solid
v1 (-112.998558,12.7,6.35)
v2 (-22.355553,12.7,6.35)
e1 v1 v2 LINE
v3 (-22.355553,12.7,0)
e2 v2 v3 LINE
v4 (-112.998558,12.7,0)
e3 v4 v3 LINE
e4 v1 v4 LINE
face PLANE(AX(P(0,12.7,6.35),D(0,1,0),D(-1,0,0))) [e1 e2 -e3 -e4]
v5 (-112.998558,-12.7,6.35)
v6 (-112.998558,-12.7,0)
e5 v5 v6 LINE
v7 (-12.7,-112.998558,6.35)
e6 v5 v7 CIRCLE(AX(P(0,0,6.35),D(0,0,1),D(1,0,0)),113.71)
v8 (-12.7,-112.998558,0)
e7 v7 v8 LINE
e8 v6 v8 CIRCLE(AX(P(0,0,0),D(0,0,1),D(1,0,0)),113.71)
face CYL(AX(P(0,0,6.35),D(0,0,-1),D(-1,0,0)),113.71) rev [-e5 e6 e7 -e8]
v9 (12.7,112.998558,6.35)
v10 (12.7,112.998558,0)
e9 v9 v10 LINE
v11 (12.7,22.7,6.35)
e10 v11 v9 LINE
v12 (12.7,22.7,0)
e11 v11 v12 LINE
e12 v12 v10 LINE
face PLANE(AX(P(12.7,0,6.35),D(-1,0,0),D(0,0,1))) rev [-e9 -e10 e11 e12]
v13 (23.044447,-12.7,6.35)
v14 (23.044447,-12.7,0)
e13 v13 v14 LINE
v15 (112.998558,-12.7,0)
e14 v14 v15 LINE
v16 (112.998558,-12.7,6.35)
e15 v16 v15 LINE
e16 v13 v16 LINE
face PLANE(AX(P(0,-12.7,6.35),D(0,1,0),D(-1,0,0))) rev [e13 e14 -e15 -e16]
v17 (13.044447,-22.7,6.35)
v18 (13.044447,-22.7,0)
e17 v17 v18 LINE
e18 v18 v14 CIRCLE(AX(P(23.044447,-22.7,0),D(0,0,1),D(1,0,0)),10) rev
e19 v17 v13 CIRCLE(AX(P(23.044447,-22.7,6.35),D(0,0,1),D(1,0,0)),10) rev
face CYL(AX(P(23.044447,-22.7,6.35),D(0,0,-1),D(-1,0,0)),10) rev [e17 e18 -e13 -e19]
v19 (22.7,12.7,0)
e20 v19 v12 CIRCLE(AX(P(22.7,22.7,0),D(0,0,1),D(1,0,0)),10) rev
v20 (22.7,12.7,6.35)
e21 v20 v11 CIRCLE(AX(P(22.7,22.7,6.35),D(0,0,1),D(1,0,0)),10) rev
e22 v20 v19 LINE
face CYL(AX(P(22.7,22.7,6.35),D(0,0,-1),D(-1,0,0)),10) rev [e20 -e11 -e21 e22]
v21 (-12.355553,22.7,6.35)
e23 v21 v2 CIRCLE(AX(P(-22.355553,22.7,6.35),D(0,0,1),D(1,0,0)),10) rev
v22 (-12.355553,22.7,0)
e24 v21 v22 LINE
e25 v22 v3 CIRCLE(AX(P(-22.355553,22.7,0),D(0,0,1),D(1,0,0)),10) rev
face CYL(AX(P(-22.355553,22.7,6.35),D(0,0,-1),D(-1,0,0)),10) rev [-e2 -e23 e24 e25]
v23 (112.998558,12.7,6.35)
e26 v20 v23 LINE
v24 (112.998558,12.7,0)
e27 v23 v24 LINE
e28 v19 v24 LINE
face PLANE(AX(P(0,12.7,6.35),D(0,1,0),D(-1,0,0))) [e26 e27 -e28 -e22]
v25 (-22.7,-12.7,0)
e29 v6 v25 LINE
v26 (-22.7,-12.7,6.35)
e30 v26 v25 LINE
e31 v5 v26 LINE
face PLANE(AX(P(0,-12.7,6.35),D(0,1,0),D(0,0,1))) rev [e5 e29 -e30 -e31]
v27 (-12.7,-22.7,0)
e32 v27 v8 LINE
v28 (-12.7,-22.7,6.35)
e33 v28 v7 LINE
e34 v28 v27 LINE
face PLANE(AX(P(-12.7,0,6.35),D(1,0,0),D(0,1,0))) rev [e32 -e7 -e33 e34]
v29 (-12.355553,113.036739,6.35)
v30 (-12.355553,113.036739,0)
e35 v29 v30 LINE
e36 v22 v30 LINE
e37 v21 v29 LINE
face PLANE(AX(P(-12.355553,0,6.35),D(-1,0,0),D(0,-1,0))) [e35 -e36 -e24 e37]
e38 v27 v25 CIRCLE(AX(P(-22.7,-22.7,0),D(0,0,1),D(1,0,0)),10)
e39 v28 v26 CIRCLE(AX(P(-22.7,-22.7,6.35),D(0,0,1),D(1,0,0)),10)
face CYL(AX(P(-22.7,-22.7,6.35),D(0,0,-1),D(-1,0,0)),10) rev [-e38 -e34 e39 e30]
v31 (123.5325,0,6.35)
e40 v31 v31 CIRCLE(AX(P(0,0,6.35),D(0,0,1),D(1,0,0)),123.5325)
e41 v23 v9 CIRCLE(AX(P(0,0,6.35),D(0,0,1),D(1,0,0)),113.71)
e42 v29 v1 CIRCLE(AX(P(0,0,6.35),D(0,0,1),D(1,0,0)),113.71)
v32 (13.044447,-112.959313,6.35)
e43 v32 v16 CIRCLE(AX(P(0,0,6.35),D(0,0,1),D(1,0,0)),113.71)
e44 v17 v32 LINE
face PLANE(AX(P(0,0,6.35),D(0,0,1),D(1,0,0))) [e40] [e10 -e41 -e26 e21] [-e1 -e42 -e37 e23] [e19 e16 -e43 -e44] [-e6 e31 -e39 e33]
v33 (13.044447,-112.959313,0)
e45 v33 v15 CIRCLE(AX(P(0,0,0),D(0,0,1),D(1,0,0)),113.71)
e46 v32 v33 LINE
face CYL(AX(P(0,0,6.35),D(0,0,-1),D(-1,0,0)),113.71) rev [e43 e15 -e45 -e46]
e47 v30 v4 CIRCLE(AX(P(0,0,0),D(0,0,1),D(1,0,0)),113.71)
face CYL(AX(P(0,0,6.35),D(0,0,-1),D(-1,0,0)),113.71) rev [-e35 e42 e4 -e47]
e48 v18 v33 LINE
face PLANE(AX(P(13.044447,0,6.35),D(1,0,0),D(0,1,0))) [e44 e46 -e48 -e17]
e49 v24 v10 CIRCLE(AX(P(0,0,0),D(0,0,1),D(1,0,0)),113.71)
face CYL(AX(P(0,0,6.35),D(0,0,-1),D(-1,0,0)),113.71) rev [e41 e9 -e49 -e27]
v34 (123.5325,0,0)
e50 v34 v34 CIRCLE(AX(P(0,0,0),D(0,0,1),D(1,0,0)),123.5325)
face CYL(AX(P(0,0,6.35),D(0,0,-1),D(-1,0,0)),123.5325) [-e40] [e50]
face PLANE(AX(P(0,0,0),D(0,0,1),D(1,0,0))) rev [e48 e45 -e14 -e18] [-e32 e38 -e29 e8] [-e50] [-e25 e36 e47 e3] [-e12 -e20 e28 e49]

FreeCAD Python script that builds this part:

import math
import FreeCAD as App
import Part
import Sketcher
from FreeCAD import Vector
Q = App.Units.Quantity

doc = App.newDocument("Part")
params = doc.addObject("Spreadsheet::Sheet", "Params")
for row, (alias, value) in enumerate([
    ("sketch1_radius", "10 mm"),
    ("sketch1_radius2", "113.71 mm"),
    ("pad1_length", "6.35 mm"),
], start=1):
    params.set(f"A{row}", alias)
    params.set(f"B{row}", "=" + value)
    params.setAlias(f"B{row}", alias)

body = doc.addObject("PartDesign::Body", "Body")

# Sketch on XY plane
sketch1 = body.newObject("Sketcher::SketchObject", "Sketch")
sketch1.AttachmentSupport = (doc.getObject("XY_Plane"), [""])
sketch1.MapMode = "FlatFace"
sketch1.addGeometry(Part.Circle(Vector(0, 0, 0), Vector(0, 0, 1), 123.5325), False)
sketch1.addGeometry(Part.ArcOfCircle(Part.Circle(Vector(0, 0, 0), Vector(0, 0, 1), 113.71), math.radians(6.412609), math.radians(83.587391)), False)
sketch1.addGeometry(Part.LineSegment(Vector(112.998558, 12.7, 0), Vector(22.7, 12.7, 0)), False)
sketch1.addGeometry(Part.ArcOfCircle(Part.Circle(Vector(22.7, 22.7, 0), Vector(0, 0, 1), 10), math.radians(180), math.radians(270)), False)
sketch1.addGeometry(Part.LineSegment(Vector(12.7, 22.7, 0), Vector(12.7, 112.998558, 0)), False)
sketch1.addGeometry(Part.ArcOfCircle(Part.Circle(Vector(0, 0, 0), Vector(0, 0, 1), 113.71), math.radians(96.237987), math.radians(173.587391)), False)
sketch1.addGeometry(Part.LineSegment(Vector(-12.355553, 113.036739, 0), Vector(-12.355553, 22.7, 0)), False)
sketch1.addGeometry(Part.ArcOfCircle(Part.Circle(Vector(-22.355553, 22.7, 0), Vector(0, 0, 1), 10), math.radians(-90), math.radians(0)), False)
sketch1.addGeometry(Part.LineSegment(Vector(-22.355553, 12.7, 0), Vector(-112.998558, 12.7, 0)), False)
sketch1.addGeometry(Part.ArcOfCircle(Part.Circle(Vector(0, 0, 0), Vector(0, 0, 1), 113.71), math.radians(-173.587391), math.radians(-96.412609)), False)
sketch1.addGeometry(Part.LineSegment(Vector(-112.998558, -12.7, 0), Vector(-22.7, -12.7, 0)), False)
sketch1.addGeometry(Part.ArcOfCircle(Part.Circle(Vector(-22.7, -22.7, 0), Vector(0, 0, 1), 10), math.radians(0), math.radians(90)), False)
sketch1.addGeometry(Part.LineSegment(Vector(-12.7, -22.7, 0), Vector(-12.7, -112.998558, 0)), False)
sketch1.addGeometry(Part.ArcOfCircle(Part.Circle(Vector(0, 0, 0), Vector(0, 0, 1), 113.71), math.radians(-83.412709), math.radians(-6.412609)), False)
sketch1.addGeometry(Part.LineSegment(Vector(13.044447, -112.959313, 0), Vector(13.044447, -22.7, 0)), False)
sketch1.addGeometry(Part.ArcOfCircle(Part.Circle(Vector(23.044447, -22.7, 0), Vector(0, 0, 1), 10), math.radians(90), math.radians(180)), False)
sketch1.addGeometry(Part.LineSegment(Vector(23.044447, -12.7, 0), Vector(112.998558, -12.7, 0)), False)
sketch1.addConstraint(Sketcher.Constraint("Coincident", 1, 1, 2, 1))
sketch1.addConstraint(Sketcher.Constraint("Tangent", 2, 2, 3, 2))
sketch1.addConstraint(Sketcher.Constraint("Tangent", 3, 1, 4, 1))
sketch1.addConstraint(Sketcher.Constraint("Coincident", 4, 2, 1, 2))
sketch1.addConstraint(Sketcher.Constraint("Coincident", 5, 1, 6, 1))
sketch1.addConstraint(Sketcher.Constraint("Tangent", 6, 2, 7, 2))
sketch1.addConstraint(Sketcher.Constraint("Tangent", 7, 1, 8, 1))
sketch1.addConstraint(Sketcher.Constraint("Coincident", 8, 2, 5, 2))
sketch1.addConstraint(Sketcher.Constraint("Coincident", 9, 1, 10, 1))
sketch1.addConstraint(Sketcher.Constraint("Tangent", 10, 2, 11, 2))
sketch1.addConstraint(Sketcher.Constraint("Tangent", 11, 1, 12, 1))
sketch1.addConstraint(Sketcher.Constraint("Coincident", 12, 2, 9, 2))
sketch1.addConstraint(Sketcher.Constraint("Coincident", 13, 1, 14, 1))
sketch1.addConstraint(Sketcher.Constraint("Tangent", 14, 2, 15, 2))
sketch1.addConstraint(Sketcher.Constraint("Tangent", 15, 1, 16, 1))
sketch1.addConstraint(Sketcher.Constraint("Coincident", 16, 2, 13, 2))
sketch1.addConstraint(Sketcher.Constraint("Horizontal", 2))
sketch1.addConstraint(Sketcher.Constraint("Vertical", 4))
sketch1.addConstraint(Sketcher.Constraint("Vertical", 6))
sketch1.addConstraint(Sketcher.Constraint("Horizontal", 8))
sketch1.addConstraint(Sketcher.Constraint("Horizontal", 10))
sketch1.addConstraint(Sketcher.Constraint("Vertical", 12))
sketch1.addConstraint(Sketcher.Constraint("Vertical", 14))
sketch1.addConstraint(Sketcher.Constraint("Horizontal", 16))
sketch1.addConstraint(Sketcher.Constraint("Coincident", 0, 3, -1, 1))
sketch1.addConstraint(Sketcher.Constraint("Coincident", 1, 3, -1, 1))
sketch1.addConstraint(Sketcher.Constraint("Coincident", 5, 3, -1, 1))
sketch1.addConstraint(Sketcher.Constraint("Coincident", 9, 3, -1, 1))
sketch1.addConstraint(Sketcher.Constraint("Coincident", 13, 3, -1, 1))
sketch1.addConstraint(Sketcher.Constraint("Equal", 1, 5))
sketch1.addConstraint(Sketcher.Constraint("Equal", 3, 7))
sketch1.addConstraint(Sketcher.Constraint("Equal", 5, 9))
sketch1.addConstraint(Sketcher.Constraint("Equal", 7, 11))
sketch1.addConstraint(Sketcher.Constraint("Equal", 9, 13))
sketch1.addConstraint(Sketcher.Constraint("Equal", 11, 15))
sketch1.addConstraint(Sketcher.Constraint("Symmetric", 3, 3, 11, 3, -1, 1))
sketch1.addConstraint(Sketcher.Constraint("Horizontal", 3, 3, 7, 3))
sketch1.addConstraint(Sketcher.Constraint("Horizontal", 11, 3, 15, 3))
sketch1.addConstraint(Sketcher.Constraint("Equal", 10, 4))
sketch1.addConstraint(Sketcher.Constraint("Radius", 3, Q("10 mm")))
sketch1.addConstraint(Sketcher.Constraint("Radius", 1, Q("113.71 mm")))
sketch1.addConstraint(Sketcher.Constraint("Diameter", 0, Q("247.065 mm")))
sketch1.addConstraint(Sketcher.Constraint("DistanceX", -1, 1, 3, 3, Q("22.7 mm")))
sketch1.addConstraint(Sketcher.Constraint("DistanceX", 16, 1, 16, 2, Q("89.954111 mm")))
sketch1.addConstraint(Sketcher.Constraint("DistanceY", 6, 2, 6, 1, Q("90.336739 mm")))
sketch1.setExpression("Constraints[39]", "Params.sketch1_radius")
sketch1.setExpression("Constraints[40]", "Params.sketch1_radius2")
pad1 = body.newObject("PartDesign::Pad", "Pad")
pad1.Profile = sketch1
pad1.setExpression("Length", "Params.pad1_length")

doc.recompute()
